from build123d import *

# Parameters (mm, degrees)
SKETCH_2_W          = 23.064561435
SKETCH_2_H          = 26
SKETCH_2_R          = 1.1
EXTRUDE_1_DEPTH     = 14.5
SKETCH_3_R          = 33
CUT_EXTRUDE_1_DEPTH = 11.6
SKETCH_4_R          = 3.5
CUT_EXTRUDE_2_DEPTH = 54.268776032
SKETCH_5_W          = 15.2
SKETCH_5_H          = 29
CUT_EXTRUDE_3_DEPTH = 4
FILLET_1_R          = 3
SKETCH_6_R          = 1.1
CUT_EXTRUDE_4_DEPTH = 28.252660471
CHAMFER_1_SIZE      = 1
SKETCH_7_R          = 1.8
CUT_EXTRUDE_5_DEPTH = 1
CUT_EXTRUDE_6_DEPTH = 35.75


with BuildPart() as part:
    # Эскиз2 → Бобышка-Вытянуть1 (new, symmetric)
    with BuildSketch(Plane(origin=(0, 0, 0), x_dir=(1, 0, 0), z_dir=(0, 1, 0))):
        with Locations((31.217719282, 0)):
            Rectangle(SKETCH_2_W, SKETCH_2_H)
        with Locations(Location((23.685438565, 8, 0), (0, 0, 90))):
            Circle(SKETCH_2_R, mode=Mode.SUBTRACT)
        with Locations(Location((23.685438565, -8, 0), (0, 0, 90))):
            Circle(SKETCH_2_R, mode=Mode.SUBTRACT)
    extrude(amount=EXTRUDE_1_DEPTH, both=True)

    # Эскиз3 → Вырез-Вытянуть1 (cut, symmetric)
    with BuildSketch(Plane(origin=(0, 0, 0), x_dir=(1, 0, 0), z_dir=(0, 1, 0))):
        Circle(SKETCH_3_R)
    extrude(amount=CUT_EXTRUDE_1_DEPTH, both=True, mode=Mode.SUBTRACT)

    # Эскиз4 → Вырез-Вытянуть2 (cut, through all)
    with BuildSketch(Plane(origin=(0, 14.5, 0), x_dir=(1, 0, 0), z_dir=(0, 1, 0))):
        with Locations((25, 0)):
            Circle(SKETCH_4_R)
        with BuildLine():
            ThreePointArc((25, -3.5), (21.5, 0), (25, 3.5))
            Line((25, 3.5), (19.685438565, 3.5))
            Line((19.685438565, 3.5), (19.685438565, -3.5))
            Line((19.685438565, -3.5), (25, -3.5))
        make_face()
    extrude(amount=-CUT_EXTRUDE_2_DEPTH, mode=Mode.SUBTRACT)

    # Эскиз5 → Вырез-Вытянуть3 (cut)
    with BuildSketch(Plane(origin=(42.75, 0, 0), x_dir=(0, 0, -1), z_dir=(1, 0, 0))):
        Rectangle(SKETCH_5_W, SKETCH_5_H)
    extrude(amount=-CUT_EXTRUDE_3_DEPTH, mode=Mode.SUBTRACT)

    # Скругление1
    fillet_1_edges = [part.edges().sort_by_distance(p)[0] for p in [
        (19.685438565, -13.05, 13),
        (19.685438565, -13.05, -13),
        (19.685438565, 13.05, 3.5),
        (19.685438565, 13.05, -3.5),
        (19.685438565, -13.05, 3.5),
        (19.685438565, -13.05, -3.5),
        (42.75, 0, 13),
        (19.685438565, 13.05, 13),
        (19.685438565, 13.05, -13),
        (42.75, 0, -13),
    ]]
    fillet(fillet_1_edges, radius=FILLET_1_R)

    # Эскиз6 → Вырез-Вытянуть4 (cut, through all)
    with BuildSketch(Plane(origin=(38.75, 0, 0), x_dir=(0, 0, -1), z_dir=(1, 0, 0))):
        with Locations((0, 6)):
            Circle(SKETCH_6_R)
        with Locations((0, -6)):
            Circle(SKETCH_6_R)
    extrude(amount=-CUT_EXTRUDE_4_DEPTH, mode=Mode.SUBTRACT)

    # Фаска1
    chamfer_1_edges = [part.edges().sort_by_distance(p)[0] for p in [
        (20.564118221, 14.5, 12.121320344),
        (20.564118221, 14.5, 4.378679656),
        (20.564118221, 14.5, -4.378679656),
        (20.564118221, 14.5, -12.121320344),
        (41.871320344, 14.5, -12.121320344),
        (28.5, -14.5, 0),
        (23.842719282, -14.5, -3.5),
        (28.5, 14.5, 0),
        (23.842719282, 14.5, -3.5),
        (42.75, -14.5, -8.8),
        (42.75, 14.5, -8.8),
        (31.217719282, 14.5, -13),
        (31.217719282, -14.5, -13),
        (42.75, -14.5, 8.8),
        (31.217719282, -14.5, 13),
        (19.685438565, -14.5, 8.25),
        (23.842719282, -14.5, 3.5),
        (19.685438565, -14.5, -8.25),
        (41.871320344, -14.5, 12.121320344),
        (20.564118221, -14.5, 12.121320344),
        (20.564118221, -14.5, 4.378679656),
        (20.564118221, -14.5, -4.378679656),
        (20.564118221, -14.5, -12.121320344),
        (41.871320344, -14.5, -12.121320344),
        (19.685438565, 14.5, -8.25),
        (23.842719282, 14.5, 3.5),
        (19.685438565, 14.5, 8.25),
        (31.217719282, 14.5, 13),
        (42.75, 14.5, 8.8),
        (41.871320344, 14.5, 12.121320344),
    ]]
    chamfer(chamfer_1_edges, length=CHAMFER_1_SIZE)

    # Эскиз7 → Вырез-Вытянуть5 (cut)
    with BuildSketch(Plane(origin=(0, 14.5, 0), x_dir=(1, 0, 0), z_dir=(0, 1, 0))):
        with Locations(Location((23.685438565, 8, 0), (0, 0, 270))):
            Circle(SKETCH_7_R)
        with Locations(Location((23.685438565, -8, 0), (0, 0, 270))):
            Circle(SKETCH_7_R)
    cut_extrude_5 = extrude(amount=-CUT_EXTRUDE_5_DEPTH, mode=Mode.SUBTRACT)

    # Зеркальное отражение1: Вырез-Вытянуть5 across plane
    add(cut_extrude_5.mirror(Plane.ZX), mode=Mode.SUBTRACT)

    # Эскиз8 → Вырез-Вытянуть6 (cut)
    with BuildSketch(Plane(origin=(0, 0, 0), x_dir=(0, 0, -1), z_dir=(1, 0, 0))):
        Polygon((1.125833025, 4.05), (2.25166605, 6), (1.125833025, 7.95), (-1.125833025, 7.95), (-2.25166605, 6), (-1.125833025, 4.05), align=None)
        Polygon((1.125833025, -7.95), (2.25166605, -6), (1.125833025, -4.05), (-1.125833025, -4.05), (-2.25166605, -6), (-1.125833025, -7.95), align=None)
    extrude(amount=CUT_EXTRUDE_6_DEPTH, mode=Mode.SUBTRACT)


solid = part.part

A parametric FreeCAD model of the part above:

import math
import FreeCAD as App
import Part
import Sketcher

V = App.Vector
Q = App.Units.Quantity


def edges_at(feature, points):
    """Names of the edges that pass closest to the given points."""
    edges = feature.Shape.Edges
    near = lambda p: min(range(len(edges)), key=lambda i: edges[i].distToShape(Part.Vertex(*p))[0])
    return sorted({f"Edge{near(p) + 1}" for p in points})

doc = App.newDocument("Part")
body = doc.addObject("PartDesign::Body", "Body")

sketch1 = doc.addObject("Sketcher::SketchObject", "Sketch")
body.addObject(sketch1)
sketch1.AttachmentSupport = (doc.XZ_Plane, [""])
sketch1.MapMode = "FlatFace"
sketch1.addGeometry([
    Part.LineSegment(V(19.7, -13, 0), V(19.7, 13, 0)),
    Part.LineSegment(V(19.7, 13, 0), V(42.8, 13, 0)),
    Part.LineSegment(V(42.8, 13, 0), V(42.8, -13, 0)),
    Part.LineSegment(V(42.8, -13, 0), V(19.7, -13, 0)),
    Part.Circle(V(23.7, 8, 0), V(0, 0, 1), 1.1),
    Part.Circle(V(23.7, -8, 0), V(0, 0, 1), 1.1),
], False)
sketch1.addConstraint([
    Sketcher.Constraint("Coincident", 0, 2, 1, 1),
    Sketcher.Constraint("Coincident", 1, 2, 2, 1),
    Sketcher.Constraint("Coincident", 2, 2, 3, 1),
    Sketcher.Constraint("Coincident", 3, 2, 0, 1),
    Sketcher.Constraint("Vertical", 0),
    Sketcher.Constraint("Horizontal", 1),
    Sketcher.Constraint("Vertical", 2),
    Sketcher.Constraint("Horizontal", 3),
    Sketcher.Constraint("Equal", 4, 5),
    Sketcher.Constraint("Symmetric", 4, 3, 5, 3, -1),
    Sketcher.Constraint("Diameter", 4, 2.2),
    Sketcher.Constraint("DistanceY", 0, 1, 0, 2, 26.0),
    Sketcher.Constraint("DistanceY", -1, 1, 4, 3, 8.0),
    Sketcher.Constraint("DistanceY", -1, 1, 0, 2, 13.0),
    Sketcher.Constraint("DistanceX", 0, 2, 4, 3, 4.0),
    Sketcher.Constraint("DistanceX", -1, 1, 1, 2, 42.75),
    Sketcher.Constraint("DistanceX", 1, 1, 1, 2, 23.064561),
])
pad1 = doc.addObject("PartDesign::Pad", "Pad")
body.addObject(pad1)
pad1.Profile = sketch1
pad1.Length = 29
pad1.Midplane = True

sketch2 = doc.addObject("Sketcher::SketchObject", "Sketch001")
body.addObject(sketch2)
sketch2.AttachmentSupport = (doc.XZ_Plane, [""])
sketch2.MapMode = "FlatFace"
sketch2.addGeometry(Part.Circle(V(0, 0, 0), V(0, 0, 1), 33), False)
sketch2.addConstraint([
    Sketcher.Constraint("Coincident", 0, 3, -1, 1),
    Sketcher.Constraint("Diameter", 0, 66.0),
])
pocket1 = doc.addObject("PartDesign::Pocket", "Pocket")
body.addObject(pocket1)
pocket1.Profile = sketch2
pocket1.Length = 23.2
pocket1.Midplane = True

sketch3 = doc.addObject("Sketcher::SketchObject", "Sketch002")
body.addObject(sketch3)
sketch3.AttachmentSupport = (doc.XZ_Plane, [""])
sketch3.MapMode = "FlatFace"
sketch3.AttachmentOffset = App.Placement(V(0, 0, -14.5), App.Rotation())
sketch3.addGeometry([
    Part.LineSegment(V(25, -3.5, 0), V(19.7, -3.5, 0)),
    Part.LineSegment(V(19.7, -3.5, 0), V(19.7, 3.5, 0)),
    Part.LineSegment(V(19.7, 3.5, 0), V(25, 3.5, 0)),
    Part.ArcOfCircle(Part.Circle(V(25, 0, 0), V(0, 0, 1), 3.5), math.radians(-90), math.radians(90)),
], False)
sketch3.addConstraint([
    Sketcher.Constraint("Coincident", 0, 2, 1, 1),
    Sketcher.Constraint("Coincident", 1, 2, 2, 1),
    Sketcher.Constraint("Tangent", 2, 2, 3, 2),
    Sketcher.Constraint("Tangent", 3, 1, 0, 1),
    Sketcher.Constraint("Horizontal", 0),
    Sketcher.Constraint("Vertical", 1),
    Sketcher.Constraint("Horizontal", 2),
    Sketcher.Constraint("PointOnObject", 3, 3, -1),
    Sketcher.Constraint("Radius", 3, 3.5),
    Sketcher.Constraint("DistanceX", -1, 1, 3, 3, 25.0),
    Sketcher.Constraint("DistanceX", 0, 2, 0, 1, 5.314561),
])
pocket2 = doc.addObject("PartDesign::Pocket", "Pocket001")
body.addObject(pocket2)
pocket2.Profile = sketch3
pocket2.Type = "ThroughAll"
pocket2.Reversed = True

sketch4 = doc.addObject("Sketcher::SketchObject", "Sketch003")
body.addObject(sketch4)
sketch4.AttachmentSupport = (doc.YZ_Plane, [""])
sketch4.MapMode = "FlatFace"
sketch4.AttachmentOffset = App.Placement(V(0, 0, 42.75), App.Rotation())
sketch4.addGeometry([
    Part.LineSegment(V(14, 8, 0), V(-14, 8, 0)),
    Part.LineSegment(V(-14, 8, 0), V(-14, -8, 0)),
    Part.LineSegment(V(-14, -8, 0), V(14, -8, 0)),
    Part.LineSegment(V(14, -8, 0), V(14, 8, 0)),
], False)
sketch4.addConstraint([
    Sketcher.Constraint("Coincident", 0, 2, 1, 1),
    Sketcher.Constraint("Coincident", 1, 2, 2, 1),
    Sketcher.Constraint("Coincident", 2, 2, 3, 1),
    Sketcher.Constraint("Coincident", 3, 2, 0, 1),
    Sketcher.Constraint("Horizontal", 0),
    Sketcher.Constraint("Vertical", 1),
    Sketcher.Constraint("Horizontal", 2),
    Sketcher.Constraint("Vertical", 3),
    Sketcher.Constraint("Symmetric", 0, 2, 2, 2, -1, 1),
    Sketcher.Constraint("DistanceX", 0, 2, 0, 1, 29.0),
    Sketcher.Constraint("DistanceY", 1, 2, 1, 1, 15.2),
])
pocket3 = doc.addObject("PartDesign::Pocket", "Pocket002")
body.addObject(pocket3)
pocket3.Profile = sketch4
pocket3.Length = 4
doc.recompute()

fillet = doc.addObject("PartDesign::Fillet", "Fillet")
body.addObject(fillet)
fillet.Base = (pocket3, edges_at(pocket3, [
    (19.685, -13.05, 13),
    (19.685, -13.05, -13),
    (19.685, 13.05, 3.5),
    (19.685, 13.05, -3.5),
    (19.685, -13.05, 3.5),
    (19.685, -13.05, -3.5),
    (42.75, 0, 13),
    (19.685, 13.05, 13),
    (19.685, 13.05, -13),
    (42.75, 0, -13),
]))
fillet.Radius = 3

sketch5 = doc.addObject("Sketcher::SketchObject", "Sketch004")
body.addObject(sketch5)
sketch5.AttachmentSupport = (doc.YZ_Plane, [""])
sketch5.MapMode = "FlatFace"
sketch5.AttachmentOffset = App.Placement(V(0, 0, 38.75), App.Rotation())
sketch5.addGeometry([
    Part.Circle(V(6, 0, 0), V(0, 0, 1), 1.1),
    Part.Circle(V(-6, 0, 0), V(0, 0, 1), 1.1),
], False)
sketch5.addConstraint([
    Sketcher.Constraint("Equal", 0, 1),
    Sketcher.Constraint("Symmetric", 0, 3, 1, 3, -1, 1),
    Sketcher.Constraint("PointOnObject", 0, 3, -1),
    Sketcher.Constraint("Diameter", 0, 2.2),
    Sketcher.Constraint("DistanceX", -1, 1, 0, 3, 6.0),
])
pocket4 = doc.addObject("PartDesign::Pocket", "Pocket003")
body.addObject(pocket4)
pocket4.Profile = sketch5
pocket4.Type = "ThroughAll"
doc.recompute()

chamfer = doc.addObject("PartDesign::Chamfer", "Chamfer")
body.addObject(chamfer)
chamfer.Base = (pocket4, edges_at(pocket4, [
    (20.564, 14.5, 12.121),
    (20.564, 14.5, 4.379),
    (20.564, 14.5, -4.379),
    (20.564, 14.5, -12.121),
    (41.871, 14.5, -12.121),
    (28.5, -14.5, 0),
    (23.843, -14.5, -3.5),
    (28.5, 14.5, 0),
    (23.843, 14.5, -3.5),
    (42.75, -14.5, -8.8),
    (42.75, 14.5, -8.8),
    (31.218, 14.5, -13),
    (31.218, -14.5, -13),
    (42.75, -14.5, 8.8),
    (31.218, -14.5, 13),
    (19.685, -14.5, 8.25),
    (23.843, -14.5, 3.5),
    (19.685, -14.5, -8.25),
    (41.871, -14.5, 12.121),
    (20.564, -14.5, 12.121),
    (20.564, -14.5, 4.379),
    (20.564, -14.5, -4.379),
    (20.564, -14.5, -12.121),
    (41.871, -14.5, -12.121),
    (19.685, 14.5, -8.25),
    (23.843, 14.5, 3.5),
    (19.685, 14.5, 8.25),
    (31.218, 14.5, 13),
    (42.75, 14.5, 8.8),
    (41.871, 14.5, 12.121),
]))
chamfer.Size = 1

sketch6 = doc.addObject("Sketcher::SketchObject", "Sketch005")
body.addObject(sketch6)
sketch6.AttachmentSupport = (doc.XZ_Plane, [""])
sketch6.MapMode = "FlatFace"
sketch6.AttachmentOffset = App.Placement(V(0, 0, -14.5), App.Rotation())
sketch6.addGeometry([
    Part.Circle(V(23.7, -8, 0), V(0, 0, 1), 1.8),
    Part.Circle(V(23.7, 8, 0), V(0, 0, 1), 1.8),
], False)
sketch6.addConstraint([
    Sketcher.Constraint("Equal", 0, 1),
    Sketcher.Constraint("Symmetric", 0, 3, 1, 3, -1),
    Sketcher.Constraint("Diameter", 0, 3.6),
    Sketcher.Constraint("DistanceY", 0, 3, -1, 1, 8.0),
    Sketcher.Constraint("DistanceX", -1, 1, 0, 3, 23.685439),
])
pocket5 = doc.addObject("PartDesign::Pocket", "Pocket004")
body.addObject(pocket5)
pocket5.Profile = sketch6
pocket5.Length = 1
pocket5.Reversed = True
doc.recompute()

mirrored = doc.addObject("PartDesign::Mirrored", "Mirrored")
body.addObject(mirrored)
mirrored.Originals = [pocket5]
mirrored.MirrorPlane = (doc.XZ_Plane, [""])
body.Tip = mirrored

sketch7 = doc.addObject("Sketcher::SketchObject", "Sketch006")
body.addObject(sketch7)
sketch7.AttachmentSupport = (doc.YZ_Plane, [""])
sketch7.MapMode = "FlatFace"
sketch7.addGeometry([
    Part.LineSegment(V(4, -1.1, 0), V(6, -2.3, 0)),
    Part.LineSegment(V(6, -2.3, 0), V(8, -1.1, 0)),
    Part.LineSegment(V(8, -1.1, 0), V(8, 1.1, 0)),
    Part.LineSegment(V(8, 1.1, 0), V(6, 2.3, 0)),
    Part.LineSegment(V(6, 2.3, 0), V(4, 1.1, 0)),
    Part.LineSegment(V(4, 1.1, 0), V(4, -1.1, 0)),
    Part.LineSegment(V(-8, -1.1, 0), V(-6, -2.3, 0)),
    Part.LineSegment(V(-6, -2.3, 0), V(-4, -1.1, 0)),
    Part.LineSegment(V(-4, -1.1, 0), V(-4, 1.1, 0)),
    Part.LineSegment(V(-4, 1.1, 0), V(-6, 2.3, 0)),
    Part.LineSegment(V(-6, 2.3, 0), V(-8, 1.1, 0)),
    Part.LineSegment(V(-8, 1.1, 0), V(-8, -1.1, 0)),
], False)
sketch7.addConstraint([
    Sketcher.Constraint("Coincident", 0, 2, 1, 1),
    Sketcher.Constraint("Coincident", 1, 2, 2, 1),
    Sketcher.Constraint("Coincident", 2, 2, 3, 1),
    Sketcher.Constraint("Coincident", 3, 2, 4, 1),
    Sketcher.Constraint("Coincident", 4, 2, 5, 1),
    Sketcher.Constraint("Coincident", 5, 2, 0, 1),
    Sketcher.Constraint("Coincident", 6, 2, 7, 1),
    Sketcher.Constraint("Coincident", 7, 2, 8, 1),
    Sketcher.Constraint("Coincident", 8, 2, 9, 1),
    Sketcher.Constraint("Coincident", 9, 2, 10, 1),
    Sketcher.Constraint("Coincident", 10, 2, 11, 1),
    Sketcher.Constraint("Coincident", 11, 2, 6, 1),
    Sketcher.Constraint("Vertical", 2),
    Sketcher.Constraint("Vertical", 5),
    Sketcher.Constraint("Vertical", 8),
    Sketcher.Constraint("Vertical", 11),
    Sketcher.Constraint("Symmetric", 3, 2, 6, 2, -1, 1),
    Sketcher.Constraint("Symmetric", 4, 2, 7, 2, -1, 1),
    Sketcher.Constraint("Symmetric", 0, 2, 9, 2, -1, 1),
    Sketcher.Constraint("Symmetric", 1, 2, 10, 2, -1, 1),
    Sketcher.Constraint("Symmetric", 0, 2, 6, 2, -2),
    Sketcher.Constraint("Parallel", 0, 3),
    Sketcher.Constraint("Parallel", 1, 4),
    Sketcher.Constraint("Parallel", 3, 6),
    Sketcher.Constraint("Parallel", 6, 9),
    Sketcher.Constraint("Horizontal", 2, 2, 4, 2),
    Sketcher.Constraint("Horizontal", 1, 2, 5, 2),
    Sketcher.Constraint("Angle", 0, Q("-30 deg")),
    Sketcher.Constraint("DistanceX", -1, 1, 0, 2, 6.0),
    Sketcher.Constraint("DistanceX", 4, 2, 2, 2, 3.9),
    Sketcher.Constraint("DistanceY", 0, 2, 2, 2, 3.377499),
])
pocket6 = doc.addObject("PartDesign::Pocket", "Pocket005")
body.addObject(pocket6)
pocket6.Profile = sketch7
pocket6.Length = 35.75
pocket6.Reversed = True

doc.recompute()
